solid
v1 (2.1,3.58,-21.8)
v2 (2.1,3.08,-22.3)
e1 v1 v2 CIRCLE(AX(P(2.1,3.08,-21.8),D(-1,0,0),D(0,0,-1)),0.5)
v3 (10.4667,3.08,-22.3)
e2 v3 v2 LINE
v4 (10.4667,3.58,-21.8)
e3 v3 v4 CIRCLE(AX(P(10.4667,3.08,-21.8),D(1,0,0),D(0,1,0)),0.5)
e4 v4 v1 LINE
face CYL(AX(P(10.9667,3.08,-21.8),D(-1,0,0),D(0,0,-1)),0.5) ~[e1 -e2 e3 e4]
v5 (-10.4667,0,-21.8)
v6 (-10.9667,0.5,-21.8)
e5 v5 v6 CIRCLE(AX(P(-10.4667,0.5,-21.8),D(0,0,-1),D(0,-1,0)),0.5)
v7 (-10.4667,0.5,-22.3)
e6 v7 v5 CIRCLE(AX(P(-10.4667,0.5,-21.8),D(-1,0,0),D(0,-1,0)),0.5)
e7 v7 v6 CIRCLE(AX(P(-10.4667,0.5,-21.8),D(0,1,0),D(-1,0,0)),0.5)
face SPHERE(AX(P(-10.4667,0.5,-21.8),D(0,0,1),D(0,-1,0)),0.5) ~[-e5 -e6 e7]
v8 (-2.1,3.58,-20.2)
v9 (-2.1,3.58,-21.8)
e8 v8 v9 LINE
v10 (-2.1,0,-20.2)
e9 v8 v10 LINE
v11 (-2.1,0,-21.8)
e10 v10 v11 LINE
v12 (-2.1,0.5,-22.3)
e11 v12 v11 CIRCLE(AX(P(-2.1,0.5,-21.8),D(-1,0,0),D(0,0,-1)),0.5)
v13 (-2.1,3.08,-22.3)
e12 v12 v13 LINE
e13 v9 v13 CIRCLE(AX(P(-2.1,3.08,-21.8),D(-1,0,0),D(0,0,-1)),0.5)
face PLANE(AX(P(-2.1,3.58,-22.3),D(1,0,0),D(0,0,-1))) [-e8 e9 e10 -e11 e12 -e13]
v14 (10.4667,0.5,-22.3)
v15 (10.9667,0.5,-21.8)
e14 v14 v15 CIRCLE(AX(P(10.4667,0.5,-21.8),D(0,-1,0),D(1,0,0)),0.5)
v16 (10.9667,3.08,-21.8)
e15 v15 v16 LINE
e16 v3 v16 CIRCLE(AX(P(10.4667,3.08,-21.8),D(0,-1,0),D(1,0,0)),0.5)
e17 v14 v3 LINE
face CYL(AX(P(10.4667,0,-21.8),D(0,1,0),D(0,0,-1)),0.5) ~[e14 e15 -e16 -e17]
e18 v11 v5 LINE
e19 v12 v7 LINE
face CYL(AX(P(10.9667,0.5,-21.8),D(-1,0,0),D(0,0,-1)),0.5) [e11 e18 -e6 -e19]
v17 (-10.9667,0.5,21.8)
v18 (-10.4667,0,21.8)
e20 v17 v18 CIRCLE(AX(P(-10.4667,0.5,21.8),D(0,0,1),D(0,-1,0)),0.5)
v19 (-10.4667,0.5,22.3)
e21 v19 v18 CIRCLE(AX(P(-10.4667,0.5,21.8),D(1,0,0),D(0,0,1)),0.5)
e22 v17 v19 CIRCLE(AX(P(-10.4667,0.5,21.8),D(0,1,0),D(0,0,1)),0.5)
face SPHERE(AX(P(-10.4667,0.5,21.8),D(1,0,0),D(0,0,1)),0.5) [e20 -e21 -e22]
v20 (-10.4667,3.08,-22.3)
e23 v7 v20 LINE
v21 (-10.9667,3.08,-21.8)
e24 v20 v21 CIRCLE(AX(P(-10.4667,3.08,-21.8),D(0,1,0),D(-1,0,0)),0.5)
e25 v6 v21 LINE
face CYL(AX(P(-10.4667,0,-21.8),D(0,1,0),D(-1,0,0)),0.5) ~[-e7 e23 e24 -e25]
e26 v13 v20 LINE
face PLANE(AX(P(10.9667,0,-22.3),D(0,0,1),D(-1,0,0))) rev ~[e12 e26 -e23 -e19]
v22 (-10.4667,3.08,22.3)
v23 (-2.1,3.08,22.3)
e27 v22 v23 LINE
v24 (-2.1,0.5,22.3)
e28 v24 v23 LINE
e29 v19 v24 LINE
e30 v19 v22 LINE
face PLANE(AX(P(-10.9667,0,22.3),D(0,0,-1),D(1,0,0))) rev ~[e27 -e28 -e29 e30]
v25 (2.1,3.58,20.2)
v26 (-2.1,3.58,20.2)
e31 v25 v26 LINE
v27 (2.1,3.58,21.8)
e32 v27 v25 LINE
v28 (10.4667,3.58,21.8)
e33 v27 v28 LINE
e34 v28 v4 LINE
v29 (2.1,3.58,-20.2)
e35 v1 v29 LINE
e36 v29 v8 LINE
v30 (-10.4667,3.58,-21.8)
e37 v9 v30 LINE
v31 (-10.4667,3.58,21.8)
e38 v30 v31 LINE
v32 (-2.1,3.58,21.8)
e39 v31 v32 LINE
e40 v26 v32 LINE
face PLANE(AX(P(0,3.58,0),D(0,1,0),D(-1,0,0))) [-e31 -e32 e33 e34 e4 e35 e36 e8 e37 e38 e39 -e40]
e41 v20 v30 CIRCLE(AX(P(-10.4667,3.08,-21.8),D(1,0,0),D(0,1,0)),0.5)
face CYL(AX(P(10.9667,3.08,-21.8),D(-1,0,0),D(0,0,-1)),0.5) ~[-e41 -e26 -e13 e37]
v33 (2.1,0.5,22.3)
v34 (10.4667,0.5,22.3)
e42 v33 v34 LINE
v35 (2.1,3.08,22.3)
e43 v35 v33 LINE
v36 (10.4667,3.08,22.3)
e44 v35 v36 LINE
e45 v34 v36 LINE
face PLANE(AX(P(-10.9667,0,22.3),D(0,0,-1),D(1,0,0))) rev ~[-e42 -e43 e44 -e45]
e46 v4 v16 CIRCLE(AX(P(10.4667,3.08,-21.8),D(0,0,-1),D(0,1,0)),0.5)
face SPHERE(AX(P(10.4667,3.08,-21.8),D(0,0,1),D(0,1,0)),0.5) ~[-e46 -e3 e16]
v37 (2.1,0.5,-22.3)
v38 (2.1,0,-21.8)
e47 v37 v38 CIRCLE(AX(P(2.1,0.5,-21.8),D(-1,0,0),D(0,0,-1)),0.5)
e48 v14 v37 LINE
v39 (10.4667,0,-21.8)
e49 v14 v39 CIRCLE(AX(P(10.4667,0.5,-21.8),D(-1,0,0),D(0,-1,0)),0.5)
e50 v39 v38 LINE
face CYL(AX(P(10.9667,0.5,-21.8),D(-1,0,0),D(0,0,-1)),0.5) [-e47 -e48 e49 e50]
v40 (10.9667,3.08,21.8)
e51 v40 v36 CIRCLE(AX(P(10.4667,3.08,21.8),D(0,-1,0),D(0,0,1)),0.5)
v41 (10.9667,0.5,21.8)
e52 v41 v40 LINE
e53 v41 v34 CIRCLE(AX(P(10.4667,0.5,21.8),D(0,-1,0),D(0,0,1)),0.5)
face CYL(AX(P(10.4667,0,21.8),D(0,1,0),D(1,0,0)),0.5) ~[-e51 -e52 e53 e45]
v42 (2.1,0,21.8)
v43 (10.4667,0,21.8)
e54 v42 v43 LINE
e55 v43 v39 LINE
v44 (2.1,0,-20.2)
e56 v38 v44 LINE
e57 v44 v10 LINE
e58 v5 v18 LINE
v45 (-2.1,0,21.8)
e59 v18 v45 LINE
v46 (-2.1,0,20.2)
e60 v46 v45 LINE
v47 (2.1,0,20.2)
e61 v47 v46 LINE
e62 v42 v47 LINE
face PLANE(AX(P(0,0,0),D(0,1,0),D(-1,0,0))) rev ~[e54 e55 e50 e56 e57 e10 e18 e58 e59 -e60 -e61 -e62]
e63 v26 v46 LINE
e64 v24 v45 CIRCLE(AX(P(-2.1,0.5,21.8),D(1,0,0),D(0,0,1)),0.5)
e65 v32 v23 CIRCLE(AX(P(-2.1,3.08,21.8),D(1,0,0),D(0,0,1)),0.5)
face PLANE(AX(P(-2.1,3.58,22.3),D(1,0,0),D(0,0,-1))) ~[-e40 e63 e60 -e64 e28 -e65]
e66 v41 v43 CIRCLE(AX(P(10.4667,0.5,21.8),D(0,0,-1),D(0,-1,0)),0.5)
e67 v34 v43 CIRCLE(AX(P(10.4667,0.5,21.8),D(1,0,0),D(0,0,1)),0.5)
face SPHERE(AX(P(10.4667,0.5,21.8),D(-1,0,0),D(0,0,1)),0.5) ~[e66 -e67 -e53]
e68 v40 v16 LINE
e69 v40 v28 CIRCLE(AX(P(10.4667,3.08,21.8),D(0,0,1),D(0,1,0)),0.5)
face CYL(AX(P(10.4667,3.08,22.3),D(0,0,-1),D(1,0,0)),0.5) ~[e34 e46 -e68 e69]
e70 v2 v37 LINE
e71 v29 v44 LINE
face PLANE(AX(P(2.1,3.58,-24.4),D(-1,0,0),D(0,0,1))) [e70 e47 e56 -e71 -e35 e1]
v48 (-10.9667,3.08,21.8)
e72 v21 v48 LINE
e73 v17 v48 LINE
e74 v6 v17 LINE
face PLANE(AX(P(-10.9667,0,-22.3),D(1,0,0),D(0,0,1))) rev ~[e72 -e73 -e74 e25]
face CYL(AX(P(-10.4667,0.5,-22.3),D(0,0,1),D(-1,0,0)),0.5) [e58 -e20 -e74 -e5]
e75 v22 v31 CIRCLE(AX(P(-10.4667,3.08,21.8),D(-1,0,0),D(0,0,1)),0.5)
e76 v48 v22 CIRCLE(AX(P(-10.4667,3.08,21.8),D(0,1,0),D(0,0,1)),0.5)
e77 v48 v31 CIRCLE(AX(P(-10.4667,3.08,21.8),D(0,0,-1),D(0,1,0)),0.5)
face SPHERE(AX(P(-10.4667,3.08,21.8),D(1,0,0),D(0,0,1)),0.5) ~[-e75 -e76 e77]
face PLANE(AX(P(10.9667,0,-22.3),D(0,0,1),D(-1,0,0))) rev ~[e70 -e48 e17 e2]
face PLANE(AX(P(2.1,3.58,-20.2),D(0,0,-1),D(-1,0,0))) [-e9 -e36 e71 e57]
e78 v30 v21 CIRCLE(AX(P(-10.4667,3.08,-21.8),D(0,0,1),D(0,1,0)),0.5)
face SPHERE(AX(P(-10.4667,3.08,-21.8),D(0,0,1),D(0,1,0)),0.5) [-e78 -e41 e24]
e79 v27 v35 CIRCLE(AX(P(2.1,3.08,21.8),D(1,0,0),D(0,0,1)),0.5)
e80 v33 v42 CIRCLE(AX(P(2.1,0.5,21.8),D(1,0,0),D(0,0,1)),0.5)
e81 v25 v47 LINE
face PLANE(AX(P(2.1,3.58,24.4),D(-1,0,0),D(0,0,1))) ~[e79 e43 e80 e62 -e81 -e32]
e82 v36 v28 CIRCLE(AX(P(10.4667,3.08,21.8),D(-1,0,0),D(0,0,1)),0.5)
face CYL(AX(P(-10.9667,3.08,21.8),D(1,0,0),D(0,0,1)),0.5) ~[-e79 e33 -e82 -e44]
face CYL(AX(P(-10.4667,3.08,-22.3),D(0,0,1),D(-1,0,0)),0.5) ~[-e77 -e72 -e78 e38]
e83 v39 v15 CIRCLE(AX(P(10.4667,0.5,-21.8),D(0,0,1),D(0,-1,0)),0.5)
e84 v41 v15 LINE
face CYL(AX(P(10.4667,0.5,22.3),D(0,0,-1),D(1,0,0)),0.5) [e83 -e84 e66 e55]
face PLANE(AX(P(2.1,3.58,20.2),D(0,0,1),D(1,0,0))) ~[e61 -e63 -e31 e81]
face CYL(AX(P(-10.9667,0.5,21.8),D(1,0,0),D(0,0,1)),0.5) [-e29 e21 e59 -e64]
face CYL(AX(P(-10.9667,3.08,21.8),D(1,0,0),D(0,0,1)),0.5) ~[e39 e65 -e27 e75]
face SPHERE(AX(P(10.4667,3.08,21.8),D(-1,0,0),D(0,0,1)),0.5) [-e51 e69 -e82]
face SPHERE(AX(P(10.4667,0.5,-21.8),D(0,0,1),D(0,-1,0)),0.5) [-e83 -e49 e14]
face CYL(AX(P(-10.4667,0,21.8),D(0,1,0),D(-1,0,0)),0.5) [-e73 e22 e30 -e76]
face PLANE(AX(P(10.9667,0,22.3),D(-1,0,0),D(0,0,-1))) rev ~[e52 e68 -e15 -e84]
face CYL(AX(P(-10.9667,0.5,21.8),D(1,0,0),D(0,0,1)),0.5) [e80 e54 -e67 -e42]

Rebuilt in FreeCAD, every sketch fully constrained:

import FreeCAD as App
import Part
import Sketcher

V = App.Vector
Q = App.Units.Quantity

doc = App.newDocument("Part")
body = doc.addObject("PartDesign::Body", "Body")

# Sketch on XZ plane
sketch1 = doc.addObject("Sketcher::SketchObject", "Sketch")
body.addObject(sketch1)
sketch1.AttachmentSupport = (doc.XZ_Plane, [""])
sketch1.MapMode = "FlatFace"
sketch1.addGeometry(Part.LineSegment(V(-11, -22, 0), V(-11, 22, 0)), False)
sketch1.addGeometry(Part.LineSegment(V(-11, 22, 0), V(11, 22, 0)), False)
sketch1.addGeometry(Part.LineSegment(V(11, 22, 0), V(11, -22, 0)), False)
sketch1.addGeometry(Part.LineSegment(V(11, -22, 0), V(-11, -22, 0)), False)
sketch1.addConstraint(Sketcher.Constraint("Coincident", 0, 2, 1, 1))
sketch1.addConstraint(Sketcher.Constraint("Coincident", 1, 2, 2, 1))
sketch1.addConstraint(Sketcher.Constraint("Coincident", 2, 2, 3, 1))
sketch1.addConstraint(Sketcher.Constraint("Coincident", 3, 2, 0, 1))
sketch1.addConstraint(Sketcher.Constraint("Vertical", 0))
sketch1.addConstraint(Sketcher.Constraint("Horizontal", 1))
sketch1.addConstraint(Sketcher.Constraint("Vertical", 2))
sketch1.addConstraint(Sketcher.Constraint("Horizontal", 3))
sketch1.addConstraint(Sketcher.Constraint("Symmetric", 0, 2, 2, 2, -1, 1))
sketch1.addConstraint(Sketcher.Constraint("DistanceY", 0, 1, 0, 2, Q("44.6 mm")))
sketch1.addConstraint(Sketcher.Constraint("DistanceX", 1, 1, 1, 2, Q("21.9334 mm")))
pad1 = doc.addObject("PartDesign::Pad", "Pad")
body.addObject(pad1)
pad1.Profile = sketch1
pad1.Length = 3.58
pad1.Reversed = True
doc.recompute()

fillet = doc.addObject("PartDesign::Fillet", "Fillet")
body.addObject(fillet)
fillet.Base = (pad1, ["Edge1"])
fillet.UseAllEdges = True
fillet.Radius = 0.5

# Sketch on XZ plane
sketch2 = doc.addObject("Sketcher::SketchObject", "Sketch001")
body.addObject(sketch2)
sketch2.AttachmentSupport = (doc.XZ_Plane, [""])
sketch2.MapMode = "FlatFace"
sketch2.AttachmentOffset = App.Placement(V(0, 0, -3.58), App.Rotation())
sketch2.addGeometry(Part.LineSegment(V(2.1, -24.4, 0), V(-2.1, -24.4, 0)), False)
sketch2.addGeometry(Part.LineSegment(V(-2.1, -24.4, 0), V(-2.1, -20.2, 0)), False)
sketch2.addGeometry(Part.LineSegment(V(-2.1, -20.2, 0), V(2.1, -20.2, 0)), False)
sketch2.addGeometry(Part.LineSegment(V(2.1, -20.2, 0), V(2.1, -24.4, 0)), False)
sketch2.addConstraint(Sketcher.Constraint("Coincident", 0, 2, 1, 1))
sketch2.addConstraint(Sketcher.Constraint("Coincident", 1, 2, 2, 1))
sketch2.addConstraint(Sketcher.Constraint("Coincident", 2, 2, 3, 1))
sketch2.addConstraint(Sketcher.Constraint("Coincident", 3, 2, 0, 1))
sketch2.addConstraint(Sketcher.Constraint("Horizontal", 0))
sketch2.addConstraint(Sketcher.Constraint("Vertical", 1))
sketch2.addConstraint(Sketcher.Constraint("Horizontal", 2))
sketch2.addConstraint(Sketcher.Constraint("Vertical", 3))
sketch2.addConstraint(Sketcher.Constraint("Equal", 2, 1))
sketch2.addConstraint(Sketcher.Constraint("DistanceX", 0, 2, 0, 1, Q("4.2 mm")))
sketch2.addConstraint(Sketcher.Constraint("DistanceX", 0, 2, -1, 1, Q("2.1 mm")))
sketch2.addConstraint(Sketcher.Constraint("DistanceY", 0, 2, -1, 1, Q("24.4 mm")))
pocket1 = doc.addObject("PartDesign::Pocket", "Pocket")
body.addObject(pocket1)
pocket1.Profile = sketch2
pocket1.Length = 10
pocket1.Reversed = True
doc.recompute()

mirrored = doc.addObject("PartDesign::Mirrored", "Mirrored")
body.addObject(mirrored)
mirrored.Originals = [pocket1]
mirrored.MirrorPlane = (doc.XY_Plane, [""])
body.Tip = mirrored

doc.recompute()
